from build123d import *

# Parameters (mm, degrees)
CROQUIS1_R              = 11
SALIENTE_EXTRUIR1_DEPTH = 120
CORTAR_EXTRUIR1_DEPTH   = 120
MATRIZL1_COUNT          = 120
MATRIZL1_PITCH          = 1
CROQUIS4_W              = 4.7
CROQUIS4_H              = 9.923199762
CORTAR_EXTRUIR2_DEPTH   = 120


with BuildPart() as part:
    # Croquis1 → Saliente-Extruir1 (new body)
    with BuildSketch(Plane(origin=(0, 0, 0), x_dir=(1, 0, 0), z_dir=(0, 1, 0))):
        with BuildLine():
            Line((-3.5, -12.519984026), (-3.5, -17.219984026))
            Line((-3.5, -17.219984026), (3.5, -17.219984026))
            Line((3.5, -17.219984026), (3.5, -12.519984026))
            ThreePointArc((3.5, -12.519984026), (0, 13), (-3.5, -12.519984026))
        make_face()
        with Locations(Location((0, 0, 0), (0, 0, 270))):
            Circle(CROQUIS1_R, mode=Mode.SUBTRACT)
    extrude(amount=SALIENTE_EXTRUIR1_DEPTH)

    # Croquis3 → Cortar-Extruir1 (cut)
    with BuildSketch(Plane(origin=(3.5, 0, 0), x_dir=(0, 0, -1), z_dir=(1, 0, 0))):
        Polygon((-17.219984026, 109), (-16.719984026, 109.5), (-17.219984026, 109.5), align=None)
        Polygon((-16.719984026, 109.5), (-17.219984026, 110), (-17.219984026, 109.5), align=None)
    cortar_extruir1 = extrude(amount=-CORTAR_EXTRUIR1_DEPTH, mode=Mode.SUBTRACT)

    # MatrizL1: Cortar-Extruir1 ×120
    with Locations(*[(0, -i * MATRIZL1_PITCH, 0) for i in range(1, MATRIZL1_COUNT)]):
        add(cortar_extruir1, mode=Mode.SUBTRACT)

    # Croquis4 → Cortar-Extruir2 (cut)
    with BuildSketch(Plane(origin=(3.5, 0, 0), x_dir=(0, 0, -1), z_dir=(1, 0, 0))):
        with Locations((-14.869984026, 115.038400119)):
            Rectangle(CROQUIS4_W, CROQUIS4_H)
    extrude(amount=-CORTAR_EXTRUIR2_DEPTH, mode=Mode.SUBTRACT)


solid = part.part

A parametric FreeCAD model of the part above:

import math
import FreeCAD as App
import Part
import Sketcher


def add_polygon(sketch, points):
    """Adds a closed chain of lines whose ends are joined by coincident constraints."""
    first, n = sketch.GeometryCount, len(points)
    for a, b in zip(points, points[1:] + points[:1]):
        sketch.addGeometry(Part.LineSegment(App.Vector(*a, 0), App.Vector(*b, 0)), False)
    for i in range(n):
        sketch.addConstraint(Sketcher.Constraint("Coincident", first + i, 2, first + (i + 1) % n, 1))

doc = App.newDocument("Part")
body = doc.addObject("PartDesign::Body", "Body")

# Sketch on XZ plane
sketch1 = body.newObject("Sketcher::SketchObject", "Sketch")
sketch1.AttachmentSupport = (doc.getObject("XZ_Plane"), [""])
sketch1.MapMode = "FlatFace"
sketch1.addGeometry(Part.LineSegment(App.Vector(-3.5, 12.5, 0), App.Vector(-3.5, 17.2, 0)), False)
sketch1.addGeometry(Part.LineSegment(App.Vector(-3.5, 17.2, 0), App.Vector(3.5, 17.2, 0)), False)
sketch1.addGeometry(Part.LineSegment(App.Vector(3.5, 17.2, 0), App.Vector(3.5, 12.5, 0)), False)
sketch1.addGeometry(Part.ArcOfCircle(Part.Circle(App.Vector(0, 0, 0), App.Vector(0, 0, 1), 13), math.radians(106), math.radians(434)), False)
sketch1.addGeometry(Part.Circle(App.Vector(0, 0, 0), App.Vector(0, 0, 1), 11), False)
sketch1.addConstraint(Sketcher.Constraint("Coincident", 0, 2, 1, 1))
sketch1.addConstraint(Sketcher.Constraint("Coincident", 1, 2, 2, 1))
sketch1.addConstraint(Sketcher.Constraint("Coincident", 2, 2, 3, 2))
sketch1.addConstraint(Sketcher.Constraint("Coincident", 3, 1, 0, 1))
sketch1.addConstraint(Sketcher.Constraint("Vertical", 0))
sketch1.addConstraint(Sketcher.Constraint("Horizontal", 1))
sketch1.addConstraint(Sketcher.Constraint("Vertical", 2))
sketch1.addConstraint(Sketcher.Constraint("Coincident", 3, 3, -1, 1))
sketch1.addConstraint(Sketcher.Constraint("Coincident", 4, 3, -1, 1))
sketch1.addConstraint(Sketcher.Constraint("Horizontal", 2, 2, 3, 1))
sketch1.addConstraint(Sketcher.Constraint("Diameter", 4, 22.0))
sketch1.addConstraint(Sketcher.Constraint("Radius", 3, 13.0))
sketch1.addConstraint(Sketcher.Constraint("DistanceX", 1, 1, 1, 2, 7.0))
sketch1.addConstraint(Sketcher.Constraint("DistanceY", 0, 1, 0, 2, 4.7))
pad1 = body.newObject("PartDesign::Pad", "Pad")
pad1.Profile = sketch1
pad1.Length = 120
pad1.Reversed = True

# Sketch on YZ plane
sketch2 = body.newObject("Sketcher::SketchObject", "Sketch001")
sketch2.AttachmentSupport = (doc.getObject("YZ_Plane"), [""])
sketch2.MapMode = "FlatFace"
sketch2.AttachmentOffset = App.Placement(App.Vector(0, 0, 3.5), App.Rotation())
add_polygon(sketch2, [(109, 17.2), (109.5, 16.7), (110, 17.2)])  # lines 0-2
sketch2.addConstraint(Sketcher.Constraint("Horizontal", 2))
sketch2.addConstraint(Sketcher.Constraint("Perpendicular", 0, 1))
sketch2.addConstraint(Sketcher.Constraint("Equal", 0, 1))
sketch2.addConstraint(Sketcher.Constraint("DistanceX", 2, 2, 2, 1, 1.0))
sketch2.addConstraint(Sketcher.Constraint("DistanceX", -1, 1, 1, 2, 110.0))
sketch2.addConstraint(Sketcher.Constraint("DistanceY", -1, 1, 0, 2, 16.719984))
pocket1 = body.newObject("PartDesign::Pocket", "Pocket")
pocket1.Profile = sketch2
pocket1.Length = 120
doc.recompute()

linearpattern = body.newObject("PartDesign::LinearPattern", "LinearPattern")
linearpattern.Originals = [pocket1]
linearpattern.Direction = (doc.getObject("Y_Axis"), [""])
linearpattern.Mode = "offset"
linearpattern.Offset = 1
linearpattern.Occurrences = 120
linearpattern.Reversed = True
body.Tip = linearpattern

# Sketch on YZ plane
sketch3 = body.newObject("Sketcher::SketchObject", "Sketch002")
sketch3.AttachmentSupport = (doc.getObject("YZ_Plane"), [""])
sketch3.MapMode = "FlatFace"
sketch3.AttachmentOffset = App.Placement(App.Vector(0, 0, 3.5), App.Rotation())
add_polygon(sketch3, [(120, 17.2), (110.1, 17.2), (110.1, 12.5), (120, 12.5)])  # lines 0-3
sketch3.addConstraint(Sketcher.Constraint("Horizontal", 0))
sketch3.addConstraint(Sketcher.Constraint("Vertical", 1))
sketch3.addConstraint(Sketcher.Constraint("Horizontal", 2))
sketch3.addConstraint(Sketcher.Constraint("Vertical", 3))
sketch3.addConstraint(Sketcher.Constraint("DistanceY", 1, 2, 1, 1, 4.7))
sketch3.addConstraint(Sketcher.Constraint("DistanceX", -1, 1, 2, 2, 120.0))
sketch3.addConstraint(Sketcher.Constraint("DistanceX", 0, 2, 0, 1, 9.9232))
sketch3.addConstraint(Sketcher.Constraint("DistanceY", -1, 1, 0, 2, 17.219984))
pocket2 = body.newObject("PartDesign::Pocket", "Pocket001")
pocket2.Profile = sketch3
pocket2.Length = 120

doc.recompute()
